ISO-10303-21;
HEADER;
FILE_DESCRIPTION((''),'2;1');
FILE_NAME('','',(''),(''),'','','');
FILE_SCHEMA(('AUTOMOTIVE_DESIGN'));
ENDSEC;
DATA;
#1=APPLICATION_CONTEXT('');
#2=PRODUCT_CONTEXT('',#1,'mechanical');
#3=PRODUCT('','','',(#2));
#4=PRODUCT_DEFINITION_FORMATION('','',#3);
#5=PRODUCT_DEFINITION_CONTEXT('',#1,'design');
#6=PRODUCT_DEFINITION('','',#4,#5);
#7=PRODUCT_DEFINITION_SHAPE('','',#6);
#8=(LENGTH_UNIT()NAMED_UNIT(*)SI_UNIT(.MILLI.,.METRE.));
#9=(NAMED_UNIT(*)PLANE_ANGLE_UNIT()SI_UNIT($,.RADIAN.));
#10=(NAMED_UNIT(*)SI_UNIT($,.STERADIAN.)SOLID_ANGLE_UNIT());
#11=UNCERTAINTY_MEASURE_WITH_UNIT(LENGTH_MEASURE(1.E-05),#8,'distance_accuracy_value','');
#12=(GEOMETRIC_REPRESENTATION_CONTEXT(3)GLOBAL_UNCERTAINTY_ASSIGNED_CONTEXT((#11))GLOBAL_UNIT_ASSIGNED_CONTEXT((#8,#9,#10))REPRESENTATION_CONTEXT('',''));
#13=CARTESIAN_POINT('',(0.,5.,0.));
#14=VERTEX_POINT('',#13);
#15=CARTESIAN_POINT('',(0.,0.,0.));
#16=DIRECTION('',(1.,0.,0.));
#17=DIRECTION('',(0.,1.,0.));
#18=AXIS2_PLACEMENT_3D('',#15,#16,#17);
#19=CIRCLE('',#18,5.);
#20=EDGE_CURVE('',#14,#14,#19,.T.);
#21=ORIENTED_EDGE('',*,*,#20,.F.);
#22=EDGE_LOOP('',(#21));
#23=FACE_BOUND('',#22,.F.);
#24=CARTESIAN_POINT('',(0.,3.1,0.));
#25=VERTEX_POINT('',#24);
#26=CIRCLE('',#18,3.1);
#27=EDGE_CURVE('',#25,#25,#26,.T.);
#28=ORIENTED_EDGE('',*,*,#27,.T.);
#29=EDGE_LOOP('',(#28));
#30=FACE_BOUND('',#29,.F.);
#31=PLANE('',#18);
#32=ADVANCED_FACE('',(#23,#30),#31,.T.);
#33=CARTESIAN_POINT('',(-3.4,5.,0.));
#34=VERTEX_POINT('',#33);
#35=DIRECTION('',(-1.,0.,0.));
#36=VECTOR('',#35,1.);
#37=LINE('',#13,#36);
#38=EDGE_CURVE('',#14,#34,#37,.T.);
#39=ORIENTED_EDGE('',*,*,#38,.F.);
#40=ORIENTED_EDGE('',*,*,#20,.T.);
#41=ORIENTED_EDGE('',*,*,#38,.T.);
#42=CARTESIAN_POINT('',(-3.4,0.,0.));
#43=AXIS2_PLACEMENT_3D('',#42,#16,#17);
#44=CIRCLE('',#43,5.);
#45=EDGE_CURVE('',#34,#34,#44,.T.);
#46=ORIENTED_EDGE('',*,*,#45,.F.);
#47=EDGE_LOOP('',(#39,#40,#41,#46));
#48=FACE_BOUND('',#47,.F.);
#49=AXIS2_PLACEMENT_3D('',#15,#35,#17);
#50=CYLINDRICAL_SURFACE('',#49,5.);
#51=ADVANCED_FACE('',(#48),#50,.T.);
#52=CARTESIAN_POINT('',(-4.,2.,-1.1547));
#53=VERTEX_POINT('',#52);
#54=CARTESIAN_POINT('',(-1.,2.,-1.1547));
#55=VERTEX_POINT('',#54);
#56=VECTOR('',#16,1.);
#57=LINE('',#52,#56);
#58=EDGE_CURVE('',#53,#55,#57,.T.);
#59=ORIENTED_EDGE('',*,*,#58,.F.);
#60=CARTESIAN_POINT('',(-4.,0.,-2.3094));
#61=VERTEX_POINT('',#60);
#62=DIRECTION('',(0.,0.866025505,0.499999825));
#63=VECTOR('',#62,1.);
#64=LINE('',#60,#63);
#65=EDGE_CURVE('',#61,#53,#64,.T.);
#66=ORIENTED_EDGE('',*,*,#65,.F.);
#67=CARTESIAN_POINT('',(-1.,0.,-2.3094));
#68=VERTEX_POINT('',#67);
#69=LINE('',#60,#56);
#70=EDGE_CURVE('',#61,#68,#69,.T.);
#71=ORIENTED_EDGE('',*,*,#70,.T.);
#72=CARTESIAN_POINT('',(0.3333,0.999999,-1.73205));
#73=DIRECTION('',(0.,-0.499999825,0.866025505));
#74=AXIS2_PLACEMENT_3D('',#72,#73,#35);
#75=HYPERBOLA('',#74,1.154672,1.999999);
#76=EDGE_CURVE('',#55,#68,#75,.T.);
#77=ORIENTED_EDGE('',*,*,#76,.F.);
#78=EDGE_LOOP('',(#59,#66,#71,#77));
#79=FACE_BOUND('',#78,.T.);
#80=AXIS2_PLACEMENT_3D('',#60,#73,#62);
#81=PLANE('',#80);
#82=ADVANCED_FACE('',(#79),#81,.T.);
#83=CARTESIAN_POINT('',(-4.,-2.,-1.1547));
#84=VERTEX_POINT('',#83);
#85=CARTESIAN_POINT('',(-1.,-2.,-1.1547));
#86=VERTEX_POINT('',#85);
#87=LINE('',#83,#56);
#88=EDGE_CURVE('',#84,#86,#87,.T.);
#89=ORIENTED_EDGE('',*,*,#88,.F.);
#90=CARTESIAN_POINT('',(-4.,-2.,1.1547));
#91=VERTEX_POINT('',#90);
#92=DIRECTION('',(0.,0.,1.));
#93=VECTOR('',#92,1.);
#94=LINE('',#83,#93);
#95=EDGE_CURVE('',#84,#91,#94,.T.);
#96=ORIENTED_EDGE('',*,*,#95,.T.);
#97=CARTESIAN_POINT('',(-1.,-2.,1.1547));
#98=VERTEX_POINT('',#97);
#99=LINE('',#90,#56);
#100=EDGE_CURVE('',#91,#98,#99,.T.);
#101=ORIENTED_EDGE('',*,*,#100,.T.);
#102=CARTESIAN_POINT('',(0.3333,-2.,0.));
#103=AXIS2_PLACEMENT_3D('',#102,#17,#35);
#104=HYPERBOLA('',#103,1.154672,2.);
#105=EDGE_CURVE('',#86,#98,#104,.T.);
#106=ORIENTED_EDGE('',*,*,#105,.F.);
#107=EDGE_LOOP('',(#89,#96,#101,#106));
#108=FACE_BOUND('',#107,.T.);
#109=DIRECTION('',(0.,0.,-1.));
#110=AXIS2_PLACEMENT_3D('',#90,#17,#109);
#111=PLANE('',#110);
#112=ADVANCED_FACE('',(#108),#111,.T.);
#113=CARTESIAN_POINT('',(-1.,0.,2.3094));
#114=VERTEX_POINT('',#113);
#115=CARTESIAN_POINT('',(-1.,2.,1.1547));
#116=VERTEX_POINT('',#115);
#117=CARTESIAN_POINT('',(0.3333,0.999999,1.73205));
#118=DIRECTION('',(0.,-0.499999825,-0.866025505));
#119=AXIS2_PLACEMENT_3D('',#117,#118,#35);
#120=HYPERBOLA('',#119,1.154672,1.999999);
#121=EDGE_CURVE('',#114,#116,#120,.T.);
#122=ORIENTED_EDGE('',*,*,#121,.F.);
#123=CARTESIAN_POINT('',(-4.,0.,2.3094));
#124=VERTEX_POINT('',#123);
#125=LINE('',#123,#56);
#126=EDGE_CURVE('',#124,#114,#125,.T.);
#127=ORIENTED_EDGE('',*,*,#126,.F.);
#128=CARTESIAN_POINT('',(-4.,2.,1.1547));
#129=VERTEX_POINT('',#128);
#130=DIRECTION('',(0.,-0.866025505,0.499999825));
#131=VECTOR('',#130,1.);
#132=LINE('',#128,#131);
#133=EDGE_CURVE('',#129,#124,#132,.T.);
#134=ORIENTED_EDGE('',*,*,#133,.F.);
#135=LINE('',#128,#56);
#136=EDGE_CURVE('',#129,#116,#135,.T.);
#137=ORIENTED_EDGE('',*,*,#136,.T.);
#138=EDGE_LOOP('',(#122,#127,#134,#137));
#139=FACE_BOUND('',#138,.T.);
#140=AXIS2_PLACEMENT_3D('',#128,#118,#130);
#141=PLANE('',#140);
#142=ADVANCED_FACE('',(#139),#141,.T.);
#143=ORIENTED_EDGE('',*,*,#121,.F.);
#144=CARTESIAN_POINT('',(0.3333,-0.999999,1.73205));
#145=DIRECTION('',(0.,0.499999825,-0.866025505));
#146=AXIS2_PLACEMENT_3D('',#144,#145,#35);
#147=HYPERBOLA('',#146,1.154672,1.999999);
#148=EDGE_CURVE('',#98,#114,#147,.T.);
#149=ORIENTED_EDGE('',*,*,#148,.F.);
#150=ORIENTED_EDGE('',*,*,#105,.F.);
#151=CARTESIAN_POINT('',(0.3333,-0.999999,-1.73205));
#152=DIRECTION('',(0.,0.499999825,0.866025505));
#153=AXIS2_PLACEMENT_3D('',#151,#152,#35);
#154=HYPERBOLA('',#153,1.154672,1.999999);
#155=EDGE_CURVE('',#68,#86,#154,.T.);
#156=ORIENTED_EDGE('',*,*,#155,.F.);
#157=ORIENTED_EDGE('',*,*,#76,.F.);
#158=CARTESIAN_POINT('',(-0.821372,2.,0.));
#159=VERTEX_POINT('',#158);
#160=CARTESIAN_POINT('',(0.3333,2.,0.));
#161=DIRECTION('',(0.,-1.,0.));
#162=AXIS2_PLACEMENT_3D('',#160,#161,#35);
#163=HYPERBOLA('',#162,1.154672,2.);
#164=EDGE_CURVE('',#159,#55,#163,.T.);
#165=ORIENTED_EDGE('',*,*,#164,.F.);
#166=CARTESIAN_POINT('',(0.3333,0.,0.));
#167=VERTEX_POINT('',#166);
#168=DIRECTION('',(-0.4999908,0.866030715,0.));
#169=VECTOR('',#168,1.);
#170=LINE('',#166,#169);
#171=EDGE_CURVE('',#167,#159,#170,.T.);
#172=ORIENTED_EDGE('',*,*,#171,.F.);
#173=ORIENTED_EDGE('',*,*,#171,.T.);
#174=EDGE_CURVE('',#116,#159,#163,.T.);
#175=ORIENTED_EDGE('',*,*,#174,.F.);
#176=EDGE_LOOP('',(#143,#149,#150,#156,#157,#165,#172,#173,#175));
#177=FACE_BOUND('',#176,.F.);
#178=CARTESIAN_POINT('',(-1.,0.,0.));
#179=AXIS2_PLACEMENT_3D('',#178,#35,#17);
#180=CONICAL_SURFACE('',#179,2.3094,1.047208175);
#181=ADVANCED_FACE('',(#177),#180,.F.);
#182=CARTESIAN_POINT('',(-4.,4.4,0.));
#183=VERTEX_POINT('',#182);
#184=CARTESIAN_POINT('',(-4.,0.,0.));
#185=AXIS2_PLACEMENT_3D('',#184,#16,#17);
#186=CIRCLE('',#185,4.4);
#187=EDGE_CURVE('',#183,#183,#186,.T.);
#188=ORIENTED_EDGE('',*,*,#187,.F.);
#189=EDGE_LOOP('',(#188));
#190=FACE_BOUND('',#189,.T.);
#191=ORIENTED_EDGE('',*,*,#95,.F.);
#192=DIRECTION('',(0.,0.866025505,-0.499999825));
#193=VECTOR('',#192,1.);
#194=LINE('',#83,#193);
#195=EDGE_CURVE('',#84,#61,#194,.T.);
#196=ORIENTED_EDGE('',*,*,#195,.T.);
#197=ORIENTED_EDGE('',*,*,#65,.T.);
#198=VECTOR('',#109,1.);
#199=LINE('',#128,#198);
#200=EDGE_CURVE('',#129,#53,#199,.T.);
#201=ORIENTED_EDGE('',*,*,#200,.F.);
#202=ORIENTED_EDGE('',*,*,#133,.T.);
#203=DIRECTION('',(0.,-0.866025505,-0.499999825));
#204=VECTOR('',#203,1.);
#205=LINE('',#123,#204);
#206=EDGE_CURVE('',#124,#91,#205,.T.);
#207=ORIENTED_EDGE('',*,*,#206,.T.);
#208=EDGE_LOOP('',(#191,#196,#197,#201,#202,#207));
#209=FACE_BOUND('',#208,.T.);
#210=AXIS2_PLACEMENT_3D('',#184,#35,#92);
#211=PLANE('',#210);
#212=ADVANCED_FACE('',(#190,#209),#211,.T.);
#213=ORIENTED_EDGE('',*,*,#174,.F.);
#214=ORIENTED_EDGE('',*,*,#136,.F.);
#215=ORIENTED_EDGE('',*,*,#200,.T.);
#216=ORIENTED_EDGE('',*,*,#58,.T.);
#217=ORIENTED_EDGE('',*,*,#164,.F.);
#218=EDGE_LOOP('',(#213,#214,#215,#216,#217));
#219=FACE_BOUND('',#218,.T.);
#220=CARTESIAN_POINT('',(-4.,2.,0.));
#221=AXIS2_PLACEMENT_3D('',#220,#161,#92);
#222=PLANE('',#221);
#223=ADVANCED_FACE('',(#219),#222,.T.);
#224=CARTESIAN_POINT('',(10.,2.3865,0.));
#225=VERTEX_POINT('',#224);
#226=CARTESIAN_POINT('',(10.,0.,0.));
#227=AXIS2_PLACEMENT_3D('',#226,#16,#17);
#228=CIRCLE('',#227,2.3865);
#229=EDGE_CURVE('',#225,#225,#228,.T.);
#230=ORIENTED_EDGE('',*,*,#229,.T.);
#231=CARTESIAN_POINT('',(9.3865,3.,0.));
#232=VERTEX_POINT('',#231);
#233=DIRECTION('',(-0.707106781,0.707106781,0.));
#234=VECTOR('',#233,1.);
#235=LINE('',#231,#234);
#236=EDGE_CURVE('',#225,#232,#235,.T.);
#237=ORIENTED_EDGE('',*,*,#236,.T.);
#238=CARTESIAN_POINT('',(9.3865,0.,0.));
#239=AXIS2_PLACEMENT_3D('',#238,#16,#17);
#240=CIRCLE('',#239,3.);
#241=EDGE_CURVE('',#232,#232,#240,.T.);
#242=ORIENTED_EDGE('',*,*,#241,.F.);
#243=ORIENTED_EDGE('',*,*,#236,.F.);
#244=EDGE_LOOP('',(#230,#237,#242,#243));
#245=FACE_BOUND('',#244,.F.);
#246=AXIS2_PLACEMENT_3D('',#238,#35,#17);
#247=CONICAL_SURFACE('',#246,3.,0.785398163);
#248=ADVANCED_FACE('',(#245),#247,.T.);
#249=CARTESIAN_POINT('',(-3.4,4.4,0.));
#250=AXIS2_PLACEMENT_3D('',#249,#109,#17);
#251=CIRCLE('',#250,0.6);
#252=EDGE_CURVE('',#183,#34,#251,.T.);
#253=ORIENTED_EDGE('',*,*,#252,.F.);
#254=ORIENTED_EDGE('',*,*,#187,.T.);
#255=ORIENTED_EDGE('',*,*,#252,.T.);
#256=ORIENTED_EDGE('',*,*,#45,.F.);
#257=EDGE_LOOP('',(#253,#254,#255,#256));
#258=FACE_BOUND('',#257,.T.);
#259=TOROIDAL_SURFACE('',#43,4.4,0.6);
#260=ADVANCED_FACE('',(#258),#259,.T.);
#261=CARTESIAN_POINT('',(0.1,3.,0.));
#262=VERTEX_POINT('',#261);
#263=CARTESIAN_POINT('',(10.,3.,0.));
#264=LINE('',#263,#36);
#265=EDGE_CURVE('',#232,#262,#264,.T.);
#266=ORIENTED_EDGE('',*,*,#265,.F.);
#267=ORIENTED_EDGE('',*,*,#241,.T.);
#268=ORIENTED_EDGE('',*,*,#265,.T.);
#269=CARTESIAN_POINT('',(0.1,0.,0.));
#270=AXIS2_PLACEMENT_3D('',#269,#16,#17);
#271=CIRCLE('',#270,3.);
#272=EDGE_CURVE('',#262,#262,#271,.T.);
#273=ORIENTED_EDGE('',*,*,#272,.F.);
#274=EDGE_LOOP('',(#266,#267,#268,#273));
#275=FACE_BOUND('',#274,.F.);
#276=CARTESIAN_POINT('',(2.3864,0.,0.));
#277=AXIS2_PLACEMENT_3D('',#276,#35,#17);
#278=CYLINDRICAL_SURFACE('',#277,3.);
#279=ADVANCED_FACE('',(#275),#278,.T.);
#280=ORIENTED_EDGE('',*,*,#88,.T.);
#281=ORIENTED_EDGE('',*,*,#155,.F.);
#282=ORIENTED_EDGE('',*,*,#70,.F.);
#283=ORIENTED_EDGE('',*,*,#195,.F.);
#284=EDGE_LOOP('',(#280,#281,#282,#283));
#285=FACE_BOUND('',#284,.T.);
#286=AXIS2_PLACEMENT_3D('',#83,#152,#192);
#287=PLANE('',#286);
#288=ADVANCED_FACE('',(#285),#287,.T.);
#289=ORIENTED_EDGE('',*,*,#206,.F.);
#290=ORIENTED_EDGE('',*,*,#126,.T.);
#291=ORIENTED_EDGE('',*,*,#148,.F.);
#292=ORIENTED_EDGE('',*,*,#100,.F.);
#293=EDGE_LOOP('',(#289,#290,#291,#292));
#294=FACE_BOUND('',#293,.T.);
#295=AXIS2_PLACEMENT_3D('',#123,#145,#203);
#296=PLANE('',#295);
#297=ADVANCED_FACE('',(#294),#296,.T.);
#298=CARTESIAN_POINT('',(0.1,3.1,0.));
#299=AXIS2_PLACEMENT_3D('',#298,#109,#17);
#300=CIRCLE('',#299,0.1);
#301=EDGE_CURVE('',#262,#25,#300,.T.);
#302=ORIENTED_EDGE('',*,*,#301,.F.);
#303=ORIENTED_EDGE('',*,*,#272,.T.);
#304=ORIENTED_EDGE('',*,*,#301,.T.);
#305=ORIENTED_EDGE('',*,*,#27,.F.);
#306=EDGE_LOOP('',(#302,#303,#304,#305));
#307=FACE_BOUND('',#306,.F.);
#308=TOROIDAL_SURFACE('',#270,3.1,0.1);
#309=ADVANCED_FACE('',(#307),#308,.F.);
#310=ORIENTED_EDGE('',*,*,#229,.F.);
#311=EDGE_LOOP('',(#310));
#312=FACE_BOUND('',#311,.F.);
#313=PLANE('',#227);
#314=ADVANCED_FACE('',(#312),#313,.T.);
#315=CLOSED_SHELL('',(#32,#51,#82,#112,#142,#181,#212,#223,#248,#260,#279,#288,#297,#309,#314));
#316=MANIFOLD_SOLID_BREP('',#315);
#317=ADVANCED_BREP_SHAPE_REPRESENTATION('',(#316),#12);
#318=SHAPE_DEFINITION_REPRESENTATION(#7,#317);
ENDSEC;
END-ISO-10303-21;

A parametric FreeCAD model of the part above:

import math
import FreeCAD as App
import Part
import Sketcher
Q = App.Units.Quantity


def edges_at(feature, points):
    """Names of the edges that pass closest to the given points."""
    edges = feature.Shape.Edges
    near = lambda p: min(range(len(edges)), key=lambda i: edges[i].distToShape(Part.Vertex(*p))[0])
    return sorted({f"Edge{near(p) + 1}" for p in points})


def add_polygon(sketch, points):
    """Adds a closed chain of lines whose ends are joined by coincident constraints."""
    first, n = sketch.GeometryCount, len(points)
    for a, b in zip(points, points[1:] + points[:1]):
        sketch.addGeometry(Part.LineSegment(App.Vector(*a, 0), App.Vector(*b, 0)), False)
    for i in range(n):
        sketch.addConstraint(Sketcher.Constraint("Coincident", first + i, 2, first + (i + 1) % n, 1))

doc = App.newDocument("Part")
body = doc.addObject("PartDesign::Body", "Body")

# Sketch on XY plane
sketch1 = body.newObject("Sketcher::SketchObject", "Sketch")
sketch1.AttachmentSupport = (doc.getObject("XY_Plane"), [""])
sketch1.MapMode = "FlatFace"
add_polygon(sketch1, [(0.3, 0), (10, 0), (10, 3), (0, 3), (0, 5), (-4, 5), (-4, 2.3), (-1, 2.3)])  # lines 0-7
sketch1.addConstraint([
    Sketcher.Constraint("Horizontal", 0),
    Sketcher.Constraint("Vertical", 1),
    Sketcher.Constraint("Horizontal", 2),
    Sketcher.Constraint("Vertical", 3),
    Sketcher.Constraint("Horizontal", 4),
    Sketcher.Constraint("Vertical", 5),
    Sketcher.Constraint("Horizontal", 6),
    Sketcher.Constraint("PointOnObject", 0, 2, -1),
    Sketcher.Constraint("PointOnObject", 2, 2, -2),
    Sketcher.Constraint("Equal", 6, 1),
    Sketcher.Constraint("DistanceX", 2, 2, 2, 1, 10.0),
    Sketcher.Constraint("DistanceX", 4, 2, 4, 1, 4.0),
    Sketcher.Constraint("DistanceX", 6, 1, 6, 2, 3.0),
    Sketcher.Constraint("DistanceY", 3, 1, 3, 2, 2.0),
    Sketcher.Constraint("Angle", 7, Q("-60.0006 deg")),
    Sketcher.Constraint("DistanceX", 0, 1, 0, 2, 9.6667),
])
revolution = body.newObject("PartDesign::Revolution", "Revolution")
revolution.Profile = sketch1
revolution.ReferenceAxis = (sketch1, ["H_Axis"])
revolution.Angle = 360

# Sketch on YZ plane
sketch2 = body.newObject("Sketcher::SketchObject", "Sketch001")
sketch2.AttachmentSupport = (doc.getObject("YZ_Plane"), [""])
sketch2.MapMode = "FlatFace"
sketch2.AttachmentOffset = App.Placement(App.Vector(0, 0, -4), App.Rotation())
sketch2.addGeometry([
    Part.LineSegment(App.Vector(2, 1.2, 0), App.Vector(0, 2.3, 0)),  # 0
    Part.ArcOfCircle(Part.Circle(App.Vector(0, 0, 0), App.Vector(0, 0, 1), 2.3), math.radians(30), math.radians(90)),  # 1
    Part.ArcOfCircle(Part.Circle(App.Vector(0, 0, 0), App.Vector(0, 0, 1), 2.3), math.radians(90), math.radians(150)),  # 2
    Part.LineSegment(App.Vector(0, 2.3, 0), App.Vector(-2, 1.2, 0)),  # 3
    Part.ArcOfCircle(Part.Circle(App.Vector(0, 0, 0), App.Vector(0, 0, 1), 2.3), math.radians(-30), math.radians(30)),  # 4
    Part.LineSegment(App.Vector(2, -1.2, 0), App.Vector(2, 1.2, 0)),  # 5
    Part.LineSegment(App.Vector(-2, 1.2, 0), App.Vector(-2, -1.2, 0)),  # 6
    Part.ArcOfCircle(Part.Circle(App.Vector(0, 0, 0), App.Vector(0, 0, 1), 2.3), math.radians(150), math.radians(210)),  # 7
    Part.LineSegment(App.Vector(-2, -1.2, 0), App.Vector(0, -2.3, 0)),  # 8
    Part.ArcOfCircle(Part.Circle(App.Vector(0, 0, 0), App.Vector(0, 0, 1), 2.3), math.radians(-150), math.radians(-90)),  # 9
    Part.ArcOfCircle(Part.Circle(App.Vector(0, 0, 0), App.Vector(0, 0, 1), 2.3), math.radians(-90), math.radians(-30)),  # 10
    Part.LineSegment(App.Vector(0, -2.3, 0), App.Vector(2, -1.2, 0)),  # 11
], False)
sketch2.addConstraint([
    Sketcher.Constraint("Coincident", 0, 1, 1, 1),
    Sketcher.Constraint("Coincident", 1, 2, 0, 2),
    Sketcher.Constraint("Coincident", 2, 1, 3, 1),
    Sketcher.Constraint("Coincident", 3, 2, 2, 2),
    Sketcher.Constraint("Coincident", 4, 1, 5, 1),
    Sketcher.Constraint("Coincident", 5, 2, 4, 2),
    Sketcher.Constraint("Coincident", 6, 1, 7, 1),
    Sketcher.Constraint("Coincident", 7, 2, 6, 2),
    Sketcher.Constraint("Coincident", 8, 1, 9, 1),
    Sketcher.Constraint("Coincident", 9, 2, 8, 2),
    Sketcher.Constraint("Coincident", 10, 1, 11, 1),
    Sketcher.Constraint("Coincident", 11, 2, 10, 2),
    Sketcher.Constraint("Vertical", 5),
    Sketcher.Constraint("Vertical", 6),
    Sketcher.Constraint("Coincident", 1, 3, -1, 1),
    Sketcher.Constraint("Coincident", 2, 3, -1, 1),
    Sketcher.Constraint("Coincident", 4, 3, -1, 1),
    Sketcher.Constraint("Coincident", 7, 3, -1, 1),
    Sketcher.Constraint("Coincident", 9, 3, -1, 1),
    Sketcher.Constraint("Coincident", 10, 3, -1, 1),
    Sketcher.Constraint("Coincident", 2, 1, 1, 2),
    Sketcher.Constraint("Coincident", 5, 2, 0, 1),
    Sketcher.Constraint("Coincident", 6, 1, 3, 2),
    Sketcher.Constraint("Coincident", 8, 1, 7, 2),
    Sketcher.Constraint("Coincident", 10, 1, 9, 2),
    Sketcher.Constraint("PointOnObject", 1, 2, -2),
    Sketcher.Constraint("PointOnObject", 9, 2, -2),
    Sketcher.Constraint("Parallel", 0, 8),
    Sketcher.Constraint("Parallel", 3, 11),
    Sketcher.Constraint("Angle", 0, Q("150 deg")),
    Sketcher.Constraint("DistanceX", -1, 1, 0, 1, 2.0),
])
pad1 = body.newObject("PartDesign::Pad", "Pad")
pad1.Profile = sketch2
pad1.Length = 3.1786
doc.recompute()

fillet = body.newObject("PartDesign::Fillet", "Fillet")
fillet.Base = (pad1, edges_at(pad1, [(-4, -5, 0)]))
fillet.Radius = 0.6
doc.recompute()

chamfer = body.newObject("PartDesign::Chamfer", "Chamfer")
chamfer.Base = (fillet, edges_at(fillet, [(10, -3, 0)]))
chamfer.ChamferType = "Two distances"
chamfer.Size = 0.6135
chamfer.Size2 = 0.6135
doc.recompute()

fillet2 = body.newObject("PartDesign::Fillet", "Fillet001")
fillet2.Base = (chamfer, edges_at(chamfer, [(0, -3, 0)]))
fillet2.Radius = 0.1

doc.recompute()
